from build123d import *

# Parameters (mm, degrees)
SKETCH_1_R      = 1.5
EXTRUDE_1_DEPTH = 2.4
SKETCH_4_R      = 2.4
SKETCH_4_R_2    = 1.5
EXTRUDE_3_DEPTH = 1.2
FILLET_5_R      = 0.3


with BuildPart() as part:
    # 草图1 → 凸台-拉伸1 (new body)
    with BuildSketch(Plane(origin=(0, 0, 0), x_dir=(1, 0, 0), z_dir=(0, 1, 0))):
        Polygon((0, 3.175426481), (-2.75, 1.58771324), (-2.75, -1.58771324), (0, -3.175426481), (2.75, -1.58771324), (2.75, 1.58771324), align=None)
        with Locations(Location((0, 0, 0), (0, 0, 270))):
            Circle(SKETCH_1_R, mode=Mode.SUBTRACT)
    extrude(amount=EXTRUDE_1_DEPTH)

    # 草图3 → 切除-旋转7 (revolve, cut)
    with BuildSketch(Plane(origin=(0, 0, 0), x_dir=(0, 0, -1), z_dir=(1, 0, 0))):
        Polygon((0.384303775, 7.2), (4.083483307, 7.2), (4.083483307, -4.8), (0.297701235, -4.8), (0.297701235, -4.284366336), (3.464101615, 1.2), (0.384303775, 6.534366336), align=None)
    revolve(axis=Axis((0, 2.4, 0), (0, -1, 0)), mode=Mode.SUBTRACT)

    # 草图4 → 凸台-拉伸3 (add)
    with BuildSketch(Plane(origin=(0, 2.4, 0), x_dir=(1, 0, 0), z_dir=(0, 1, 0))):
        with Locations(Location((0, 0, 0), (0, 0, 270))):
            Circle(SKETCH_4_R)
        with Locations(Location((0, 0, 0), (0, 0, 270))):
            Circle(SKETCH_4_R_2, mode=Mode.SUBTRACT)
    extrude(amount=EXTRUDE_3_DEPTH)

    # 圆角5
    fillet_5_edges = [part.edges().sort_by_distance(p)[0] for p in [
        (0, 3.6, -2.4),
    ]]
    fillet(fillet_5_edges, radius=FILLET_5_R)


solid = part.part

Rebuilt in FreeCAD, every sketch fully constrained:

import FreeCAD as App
import Part
import Sketcher

V = App.Vector
Q = App.Units.Quantity


def edges_at(feature, points):
    """Names of the edges that pass closest to the given points."""
    edges = feature.Shape.Edges
    near = lambda p: min(range(len(edges)), key=lambda i: edges[i].distToShape(Part.Vertex(*p))[0])
    return sorted({f"Edge{near(p) + 1}" for p in points})


def add_polygon(sketch, points):
    """Adds a closed chain of lines whose ends are joined by coincident constraints."""
    first, n = sketch.GeometryCount, len(points)
    for a, b in zip(points, points[1:] + points[:1]):
        sketch.addGeometry(Part.LineSegment(App.Vector(*a, 0), App.Vector(*b, 0)), False)
    for i in range(n):
        sketch.addConstraint(Sketcher.Constraint("Coincident", first + i, 2, first + (i + 1) % n, 1))

doc = App.newDocument("Part")
body = doc.addObject("PartDesign::Body", "Body")

# Sketch on XZ plane
sketch1 = body.newObject("Sketcher::SketchObject", "Sketch")
sketch1.AttachmentSupport = (doc.getObject("XZ_Plane"), [""])
sketch1.MapMode = "FlatFace"
add_polygon(sketch1, [(0, -3.2), (-2.8, -1.6), (-2.8, 1.6), (0, 3.2), (2.8, 1.6), (2.8, -1.6)])  # lines 0-5
sketch1.addGeometry(Part.Circle(V(0, 0, 0), V(0, 0, 1), 1.5), False)  # 6
sketch1.addConstraint([
    Sketcher.Constraint("Vertical", 1),
    Sketcher.Constraint("Vertical", 4),
    Sketcher.Constraint("Coincident", 6, 3, -1, 1),
    Sketcher.Constraint("Symmetric", 0, 2, 3, 2, -1, 1),
    Sketcher.Constraint("Symmetric", 2, 2, 5, 2, -1, 1),
    Sketcher.Constraint("PointOnObject", 2, 2, -2),
    Sketcher.Constraint("Parallel", 2, 5),
    Sketcher.Constraint("Horizontal", 1, 2, 3, 2),
    Sketcher.Constraint("Diameter", 6, 3.0),
    Sketcher.Constraint("Angle", 0, Q("150 deg")),
    Sketcher.Constraint("DistanceX", 1, 2, 3, 2, 5.5),
    Sketcher.Constraint("DistanceY", 1, 1, 1, 2, 3.175426),
])
pad1 = body.newObject("PartDesign::Pad", "Pad")
pad1.Profile = sketch1
pad1.Length = 2.4
pad1.Reversed = True

# Sketch on YZ plane
sketch2 = body.newObject("Sketcher::SketchObject", "Sketch001")
sketch2.AttachmentSupport = (doc.getObject("YZ_Plane"), [""])
sketch2.MapMode = "FlatFace"
add_polygon(sketch2, [(7.2, -4.1), (7.2, -0.4), (6.5, -0.4), (1.2, -3.5), (-4.3, -0.3), (-4.8, -0.3), (-4.8, -4.1)])  # lines 0-6
sketch2.addConstraint([
    Sketcher.Constraint("Vertical", 0),
    Sketcher.Constraint("Horizontal", 1),
    Sketcher.Constraint("Horizontal", 4),
    Sketcher.Constraint("Vertical", 5),
    Sketcher.Constraint("Horizontal", 6),
    Sketcher.Constraint("DistanceX", 6, 1, 6, 2, 12.0),
    Sketcher.Constraint("Angle", 2, Q("-150 deg")),
    Sketcher.Constraint("Angle", 3, Q("150 deg")),
    Sketcher.Constraint("DistanceX", 2, 2, 0, 2, 6.0),
    Sketcher.Constraint("DistanceX", -1, 1, 0, 2, 7.2),
    Sketcher.Constraint("Distance", 3, 6.332801),
    Sketcher.Constraint("DistanceY", 0, 1, 0, 2, 3.69918),
    Sketcher.Constraint("DistanceY", 2, 2, -1, 1, 3.464102),
    Sketcher.Constraint("DistanceX", 1, 2, 1, 1, 0.665634),
])
groove = body.newObject("PartDesign::Groove", "Groove")
groove.Profile = sketch2
groove.ReferenceAxis = (sketch2, ["H_Axis"])
groove.Angle = 360

# Sketch on XZ plane
sketch3 = body.newObject("Sketcher::SketchObject", "Sketch002")
sketch3.AttachmentSupport = (doc.getObject("XZ_Plane"), [""])
sketch3.MapMode = "FlatFace"
sketch3.AttachmentOffset = App.Placement(V(0, 0, -2.4), App.Rotation())
sketch3.addGeometry([
    Part.Circle(V(0, 0, 0), V(0, 0, 1), 2.4),
    Part.Circle(V(0, 0, 0), V(0, 0, 1), 1.5),
], False)
sketch3.addConstraint([
    Sketcher.Constraint("Coincident", 0, 3, -1, 1),
    Sketcher.Constraint("Coincident", 1, 3, -1, 1),
    Sketcher.Constraint("Diameter", 1, 3.0),
    Sketcher.Constraint("Diameter", 0, 4.8),
])
pad2 = body.newObject("PartDesign::Pad", "Pad001")
pad2.Profile = sketch3
pad2.Length = 1.2
pad2.Reversed = True
doc.recompute()

fillet = body.newObject("PartDesign::Fillet", "Fillet")
fillet.Base = (pad2, edges_at(pad2, [(0, 3.6, -2.4)]))
fillet.Radius = 0.3

doc.recompute()
